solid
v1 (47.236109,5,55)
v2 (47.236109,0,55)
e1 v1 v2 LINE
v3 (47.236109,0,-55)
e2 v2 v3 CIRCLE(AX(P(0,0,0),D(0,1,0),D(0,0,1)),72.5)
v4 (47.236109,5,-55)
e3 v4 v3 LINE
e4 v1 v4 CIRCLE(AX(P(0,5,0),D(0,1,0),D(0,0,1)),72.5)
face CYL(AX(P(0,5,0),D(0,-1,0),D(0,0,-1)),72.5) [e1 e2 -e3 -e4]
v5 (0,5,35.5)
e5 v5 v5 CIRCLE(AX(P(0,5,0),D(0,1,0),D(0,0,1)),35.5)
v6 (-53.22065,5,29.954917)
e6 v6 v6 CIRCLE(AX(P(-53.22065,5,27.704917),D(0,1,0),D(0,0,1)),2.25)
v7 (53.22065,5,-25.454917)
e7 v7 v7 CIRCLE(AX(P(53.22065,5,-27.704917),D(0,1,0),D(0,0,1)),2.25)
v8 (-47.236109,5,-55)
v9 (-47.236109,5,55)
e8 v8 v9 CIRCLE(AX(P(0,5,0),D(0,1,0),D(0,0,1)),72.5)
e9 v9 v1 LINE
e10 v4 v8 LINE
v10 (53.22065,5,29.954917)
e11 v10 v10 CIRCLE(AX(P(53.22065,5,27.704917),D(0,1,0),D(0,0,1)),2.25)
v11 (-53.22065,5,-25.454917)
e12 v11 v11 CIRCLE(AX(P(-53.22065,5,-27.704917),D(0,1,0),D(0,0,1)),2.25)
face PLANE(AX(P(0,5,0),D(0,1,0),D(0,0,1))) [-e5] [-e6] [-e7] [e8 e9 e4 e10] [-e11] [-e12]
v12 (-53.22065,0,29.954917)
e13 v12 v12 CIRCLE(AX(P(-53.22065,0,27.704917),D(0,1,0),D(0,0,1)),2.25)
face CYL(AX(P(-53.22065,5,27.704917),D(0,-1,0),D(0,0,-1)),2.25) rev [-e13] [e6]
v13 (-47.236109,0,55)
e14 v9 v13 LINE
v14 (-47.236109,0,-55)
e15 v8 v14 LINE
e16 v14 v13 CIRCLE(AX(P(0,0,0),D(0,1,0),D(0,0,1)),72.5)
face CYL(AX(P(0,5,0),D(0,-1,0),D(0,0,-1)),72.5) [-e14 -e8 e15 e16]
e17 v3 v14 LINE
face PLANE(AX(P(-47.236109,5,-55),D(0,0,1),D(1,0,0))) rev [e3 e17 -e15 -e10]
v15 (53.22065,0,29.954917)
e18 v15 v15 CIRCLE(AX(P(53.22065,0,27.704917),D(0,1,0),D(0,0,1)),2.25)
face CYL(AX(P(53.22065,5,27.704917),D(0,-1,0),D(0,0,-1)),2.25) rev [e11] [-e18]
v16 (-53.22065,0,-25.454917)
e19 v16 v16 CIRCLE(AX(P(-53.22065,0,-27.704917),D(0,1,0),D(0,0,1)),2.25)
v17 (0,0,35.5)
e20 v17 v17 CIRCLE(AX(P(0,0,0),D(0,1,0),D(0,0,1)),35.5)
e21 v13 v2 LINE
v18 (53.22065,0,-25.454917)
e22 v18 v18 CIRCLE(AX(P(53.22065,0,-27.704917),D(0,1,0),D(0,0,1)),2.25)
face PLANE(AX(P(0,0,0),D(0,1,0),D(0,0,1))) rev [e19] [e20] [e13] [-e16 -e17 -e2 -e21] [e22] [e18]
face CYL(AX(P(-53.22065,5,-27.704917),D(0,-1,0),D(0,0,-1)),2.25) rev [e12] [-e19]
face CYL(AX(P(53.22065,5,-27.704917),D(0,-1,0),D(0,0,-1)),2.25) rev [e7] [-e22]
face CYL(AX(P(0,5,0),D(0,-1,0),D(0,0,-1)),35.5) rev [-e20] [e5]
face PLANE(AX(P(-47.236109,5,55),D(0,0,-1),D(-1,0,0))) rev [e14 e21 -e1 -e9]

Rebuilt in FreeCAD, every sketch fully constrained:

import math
import FreeCAD as App
import Part
import Sketcher

doc = App.newDocument("Part")
params = doc.addObject("Spreadsheet::Sheet", "Params")
for row, (alias, value) in enumerate([
    ("sketch1_diameter", "71 mm"),
    ("sketch1_diameter2", "4.5 mm"),
    ("sketch1_radius", "72.5 mm"),
    ("pad1_length", "5 mm"),
], start=1):
    params.set(f"A{row}", alias)
    params.set(f"B{row}", "=" + value)
    params.setAlias(f"B{row}", alias)

body = doc.addObject("PartDesign::Body", "Body")

# Sketch on XZ plane
sketch1 = body.newObject("Sketcher::SketchObject", "Sketch")
sketch1.AttachmentSupport = (doc.getObject("XZ_Plane"), [""])
sketch1.MapMode = "FlatFace"
sketch1.addGeometry(Part.LineSegment(App.Vector(-47.236109, 55, 0), App.Vector(47.236109, 55, 0)), False)
sketch1.addGeometry(Part.ArcOfCircle(Part.Circle(App.Vector(0, 0, 0), App.Vector(0, 0, 1), 72.5), math.radians(-49.342751), math.radians(49.342751)), False)
sketch1.addGeometry(Part.LineSegment(App.Vector(47.236109, -55, 0), App.Vector(-47.236109, -55, 0)), False)
sketch1.addGeometry(Part.ArcOfCircle(Part.Circle(App.Vector(0, 0, 0), App.Vector(0, 0, 1), 72.5), math.radians(130.657249), math.radians(229.342751)), False)
sketch1.addGeometry(Part.Circle(App.Vector(-53.22065, 27.704917, 0), App.Vector(0, 0, 1), 2.25), False)
sketch1.addGeometry(Part.Circle(App.Vector(53.22065, 27.704917, 0), App.Vector(0, 0, 1), 2.25), False)
sketch1.addGeometry(Part.Circle(App.Vector(-53.22065, -27.704917, 0), App.Vector(0, 0, 1), 2.25), False)
sketch1.addGeometry(Part.Circle(App.Vector(0, 0, 0), App.Vector(0, 0, 1), 35.5), False)
sketch1.addGeometry(Part.Circle(App.Vector(53.22065, -27.704917, 0), App.Vector(0, 0, 1), 2.25), False)
sketch1.addConstraint(Sketcher.Constraint("Coincident", 0, 2, 1, 2))
sketch1.addConstraint(Sketcher.Constraint("Coincident", 1, 1, 2, 1))
sketch1.addConstraint(Sketcher.Constraint("Coincident", 2, 2, 3, 2))
sketch1.addConstraint(Sketcher.Constraint("Coincident", 3, 1, 0, 1))
sketch1.addConstraint(Sketcher.Constraint("Horizontal", 0))
sketch1.addConstraint(Sketcher.Constraint("Horizontal", 2))
sketch1.addConstraint(Sketcher.Constraint("Coincident", 1, 3, -1, 1))
sketch1.addConstraint(Sketcher.Constraint("Coincident", 3, 3, -1, 1))
sketch1.addConstraint(Sketcher.Constraint("Coincident", 7, 3, -1, 1))
sketch1.addConstraint(Sketcher.Constraint("Equal", 1, 3))
sketch1.addConstraint(Sketcher.Constraint("Equal", 4, 5))
sketch1.addConstraint(Sketcher.Constraint("Equal", 5, 6))
sketch1.addConstraint(Sketcher.Constraint("Equal", 6, 8))
sketch1.addConstraint(Sketcher.Constraint("Symmetric", 5, 3, 6, 3, -1, 1))
sketch1.addConstraint(Sketcher.Constraint("Symmetric", 4, 3, 8, 3, -1, 1))
sketch1.addConstraint(Sketcher.Constraint("Symmetric", 4, 3, 5, 3, -2))
sketch1.addConstraint(Sketcher.Constraint("Vertical", 0, 2, 1, 1))
sketch1.addConstraint(Sketcher.Constraint("Diameter", 7, 71.0))
sketch1.addConstraint(Sketcher.Constraint("Diameter", 4, 4.5))
sketch1.addConstraint(Sketcher.Constraint("Radius", 1, 72.5))
sketch1.addConstraint(Sketcher.Constraint("DistanceY", -1, 1, 0, 2, 55.0))
sketch1.addConstraint(Sketcher.Constraint("DistanceX", 4, 3, 5, 3, 106.4413))
sketch1.addConstraint(Sketcher.Constraint("DistanceY", -1, 1, 4, 3, 27.704917))
sketch1.setExpression("Constraints[17]", "Params.sketch1_diameter")
sketch1.setExpression("Constraints[18]", "Params.sketch1_diameter2")
sketch1.setExpression("Constraints[19]", "Params.sketch1_radius")
pad1 = body.newObject("PartDesign::Pad", "Pad")
pad1.Profile = sketch1
pad1.setExpression("Length", "Params.pad1_length")
pad1.Reversed = True

doc.recompute()
